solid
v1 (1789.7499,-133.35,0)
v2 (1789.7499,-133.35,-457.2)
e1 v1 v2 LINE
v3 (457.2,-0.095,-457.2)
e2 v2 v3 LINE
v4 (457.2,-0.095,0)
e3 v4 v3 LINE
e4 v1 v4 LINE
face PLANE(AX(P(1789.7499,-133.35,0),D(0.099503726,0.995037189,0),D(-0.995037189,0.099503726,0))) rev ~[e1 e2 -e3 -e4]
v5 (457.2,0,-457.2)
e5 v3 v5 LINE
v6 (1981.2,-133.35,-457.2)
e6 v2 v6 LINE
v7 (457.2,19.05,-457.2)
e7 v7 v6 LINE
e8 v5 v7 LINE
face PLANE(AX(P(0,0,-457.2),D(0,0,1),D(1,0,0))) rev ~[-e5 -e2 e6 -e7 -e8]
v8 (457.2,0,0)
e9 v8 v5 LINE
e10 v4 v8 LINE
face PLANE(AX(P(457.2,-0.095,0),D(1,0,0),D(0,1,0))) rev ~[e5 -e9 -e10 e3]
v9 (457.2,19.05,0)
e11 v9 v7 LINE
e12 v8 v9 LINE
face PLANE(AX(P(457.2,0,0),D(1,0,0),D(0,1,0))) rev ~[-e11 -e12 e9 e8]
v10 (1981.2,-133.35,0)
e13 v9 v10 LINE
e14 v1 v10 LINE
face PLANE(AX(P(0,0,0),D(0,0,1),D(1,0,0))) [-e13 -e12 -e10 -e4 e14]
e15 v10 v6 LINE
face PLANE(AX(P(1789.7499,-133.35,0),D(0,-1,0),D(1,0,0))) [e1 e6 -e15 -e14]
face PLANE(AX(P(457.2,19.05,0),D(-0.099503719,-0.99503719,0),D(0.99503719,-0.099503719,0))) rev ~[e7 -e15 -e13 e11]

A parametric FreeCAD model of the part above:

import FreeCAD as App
import Part
import Sketcher
Q = App.Units.Quantity


def add_polygon(sketch, points):
    """Adds a closed chain of lines whose ends are joined by coincident constraints."""
    first, n = sketch.GeometryCount, len(points)
    for a, b in zip(points, points[1:] + points[:1]):
        sketch.addGeometry(Part.LineSegment(App.Vector(*a, 0), App.Vector(*b, 0)), False)
    for i in range(n):
        sketch.addConstraint(Sketcher.Constraint("Coincident", first + i, 2, first + (i + 1) % n, 1))

doc = App.newDocument("Part")
body = doc.addObject("PartDesign::Body", "Body")

sketch1 = doc.addObject("Sketcher::SketchObject", "Sketch")
body.addObject(sketch1)
sketch1.AttachmentSupport = (doc.XY_Plane, [""])
sketch1.MapMode = "FlatFace"
add_polygon(sketch1, [(457, 19), (457, 0), (1790, -133), (1981, -133)])
sketch1.addConstraint([
    Sketcher.Constraint("Vertical", 0),
    Sketcher.Constraint("Horizontal", 2),
    Sketcher.Constraint("Parallel", 1, 3),
    Sketcher.Constraint("DistanceX", -1, 1, 2, 2, Q("78 in")),
    Sketcher.Constraint("DistanceY", -1, 1, 3, 2, Q("0.75 in")),
    Sketcher.Constraint("DistanceX", -1, 1, 0, 2, Q("18 in")),
    Sketcher.Constraint("DistanceY", 1, 2, 3, 2, Q("6 in")),
    Sketcher.Constraint("DistanceX", 2, 1, 2, 2, Q("7.5374 in")),
])
pad1 = doc.addObject("PartDesign::Pad", "Pad")
body.addObject(pad1)
pad1.Profile = sketch1
pad1.Length = Q("18 in")
pad1.Reversed = True

doc.recompute()
